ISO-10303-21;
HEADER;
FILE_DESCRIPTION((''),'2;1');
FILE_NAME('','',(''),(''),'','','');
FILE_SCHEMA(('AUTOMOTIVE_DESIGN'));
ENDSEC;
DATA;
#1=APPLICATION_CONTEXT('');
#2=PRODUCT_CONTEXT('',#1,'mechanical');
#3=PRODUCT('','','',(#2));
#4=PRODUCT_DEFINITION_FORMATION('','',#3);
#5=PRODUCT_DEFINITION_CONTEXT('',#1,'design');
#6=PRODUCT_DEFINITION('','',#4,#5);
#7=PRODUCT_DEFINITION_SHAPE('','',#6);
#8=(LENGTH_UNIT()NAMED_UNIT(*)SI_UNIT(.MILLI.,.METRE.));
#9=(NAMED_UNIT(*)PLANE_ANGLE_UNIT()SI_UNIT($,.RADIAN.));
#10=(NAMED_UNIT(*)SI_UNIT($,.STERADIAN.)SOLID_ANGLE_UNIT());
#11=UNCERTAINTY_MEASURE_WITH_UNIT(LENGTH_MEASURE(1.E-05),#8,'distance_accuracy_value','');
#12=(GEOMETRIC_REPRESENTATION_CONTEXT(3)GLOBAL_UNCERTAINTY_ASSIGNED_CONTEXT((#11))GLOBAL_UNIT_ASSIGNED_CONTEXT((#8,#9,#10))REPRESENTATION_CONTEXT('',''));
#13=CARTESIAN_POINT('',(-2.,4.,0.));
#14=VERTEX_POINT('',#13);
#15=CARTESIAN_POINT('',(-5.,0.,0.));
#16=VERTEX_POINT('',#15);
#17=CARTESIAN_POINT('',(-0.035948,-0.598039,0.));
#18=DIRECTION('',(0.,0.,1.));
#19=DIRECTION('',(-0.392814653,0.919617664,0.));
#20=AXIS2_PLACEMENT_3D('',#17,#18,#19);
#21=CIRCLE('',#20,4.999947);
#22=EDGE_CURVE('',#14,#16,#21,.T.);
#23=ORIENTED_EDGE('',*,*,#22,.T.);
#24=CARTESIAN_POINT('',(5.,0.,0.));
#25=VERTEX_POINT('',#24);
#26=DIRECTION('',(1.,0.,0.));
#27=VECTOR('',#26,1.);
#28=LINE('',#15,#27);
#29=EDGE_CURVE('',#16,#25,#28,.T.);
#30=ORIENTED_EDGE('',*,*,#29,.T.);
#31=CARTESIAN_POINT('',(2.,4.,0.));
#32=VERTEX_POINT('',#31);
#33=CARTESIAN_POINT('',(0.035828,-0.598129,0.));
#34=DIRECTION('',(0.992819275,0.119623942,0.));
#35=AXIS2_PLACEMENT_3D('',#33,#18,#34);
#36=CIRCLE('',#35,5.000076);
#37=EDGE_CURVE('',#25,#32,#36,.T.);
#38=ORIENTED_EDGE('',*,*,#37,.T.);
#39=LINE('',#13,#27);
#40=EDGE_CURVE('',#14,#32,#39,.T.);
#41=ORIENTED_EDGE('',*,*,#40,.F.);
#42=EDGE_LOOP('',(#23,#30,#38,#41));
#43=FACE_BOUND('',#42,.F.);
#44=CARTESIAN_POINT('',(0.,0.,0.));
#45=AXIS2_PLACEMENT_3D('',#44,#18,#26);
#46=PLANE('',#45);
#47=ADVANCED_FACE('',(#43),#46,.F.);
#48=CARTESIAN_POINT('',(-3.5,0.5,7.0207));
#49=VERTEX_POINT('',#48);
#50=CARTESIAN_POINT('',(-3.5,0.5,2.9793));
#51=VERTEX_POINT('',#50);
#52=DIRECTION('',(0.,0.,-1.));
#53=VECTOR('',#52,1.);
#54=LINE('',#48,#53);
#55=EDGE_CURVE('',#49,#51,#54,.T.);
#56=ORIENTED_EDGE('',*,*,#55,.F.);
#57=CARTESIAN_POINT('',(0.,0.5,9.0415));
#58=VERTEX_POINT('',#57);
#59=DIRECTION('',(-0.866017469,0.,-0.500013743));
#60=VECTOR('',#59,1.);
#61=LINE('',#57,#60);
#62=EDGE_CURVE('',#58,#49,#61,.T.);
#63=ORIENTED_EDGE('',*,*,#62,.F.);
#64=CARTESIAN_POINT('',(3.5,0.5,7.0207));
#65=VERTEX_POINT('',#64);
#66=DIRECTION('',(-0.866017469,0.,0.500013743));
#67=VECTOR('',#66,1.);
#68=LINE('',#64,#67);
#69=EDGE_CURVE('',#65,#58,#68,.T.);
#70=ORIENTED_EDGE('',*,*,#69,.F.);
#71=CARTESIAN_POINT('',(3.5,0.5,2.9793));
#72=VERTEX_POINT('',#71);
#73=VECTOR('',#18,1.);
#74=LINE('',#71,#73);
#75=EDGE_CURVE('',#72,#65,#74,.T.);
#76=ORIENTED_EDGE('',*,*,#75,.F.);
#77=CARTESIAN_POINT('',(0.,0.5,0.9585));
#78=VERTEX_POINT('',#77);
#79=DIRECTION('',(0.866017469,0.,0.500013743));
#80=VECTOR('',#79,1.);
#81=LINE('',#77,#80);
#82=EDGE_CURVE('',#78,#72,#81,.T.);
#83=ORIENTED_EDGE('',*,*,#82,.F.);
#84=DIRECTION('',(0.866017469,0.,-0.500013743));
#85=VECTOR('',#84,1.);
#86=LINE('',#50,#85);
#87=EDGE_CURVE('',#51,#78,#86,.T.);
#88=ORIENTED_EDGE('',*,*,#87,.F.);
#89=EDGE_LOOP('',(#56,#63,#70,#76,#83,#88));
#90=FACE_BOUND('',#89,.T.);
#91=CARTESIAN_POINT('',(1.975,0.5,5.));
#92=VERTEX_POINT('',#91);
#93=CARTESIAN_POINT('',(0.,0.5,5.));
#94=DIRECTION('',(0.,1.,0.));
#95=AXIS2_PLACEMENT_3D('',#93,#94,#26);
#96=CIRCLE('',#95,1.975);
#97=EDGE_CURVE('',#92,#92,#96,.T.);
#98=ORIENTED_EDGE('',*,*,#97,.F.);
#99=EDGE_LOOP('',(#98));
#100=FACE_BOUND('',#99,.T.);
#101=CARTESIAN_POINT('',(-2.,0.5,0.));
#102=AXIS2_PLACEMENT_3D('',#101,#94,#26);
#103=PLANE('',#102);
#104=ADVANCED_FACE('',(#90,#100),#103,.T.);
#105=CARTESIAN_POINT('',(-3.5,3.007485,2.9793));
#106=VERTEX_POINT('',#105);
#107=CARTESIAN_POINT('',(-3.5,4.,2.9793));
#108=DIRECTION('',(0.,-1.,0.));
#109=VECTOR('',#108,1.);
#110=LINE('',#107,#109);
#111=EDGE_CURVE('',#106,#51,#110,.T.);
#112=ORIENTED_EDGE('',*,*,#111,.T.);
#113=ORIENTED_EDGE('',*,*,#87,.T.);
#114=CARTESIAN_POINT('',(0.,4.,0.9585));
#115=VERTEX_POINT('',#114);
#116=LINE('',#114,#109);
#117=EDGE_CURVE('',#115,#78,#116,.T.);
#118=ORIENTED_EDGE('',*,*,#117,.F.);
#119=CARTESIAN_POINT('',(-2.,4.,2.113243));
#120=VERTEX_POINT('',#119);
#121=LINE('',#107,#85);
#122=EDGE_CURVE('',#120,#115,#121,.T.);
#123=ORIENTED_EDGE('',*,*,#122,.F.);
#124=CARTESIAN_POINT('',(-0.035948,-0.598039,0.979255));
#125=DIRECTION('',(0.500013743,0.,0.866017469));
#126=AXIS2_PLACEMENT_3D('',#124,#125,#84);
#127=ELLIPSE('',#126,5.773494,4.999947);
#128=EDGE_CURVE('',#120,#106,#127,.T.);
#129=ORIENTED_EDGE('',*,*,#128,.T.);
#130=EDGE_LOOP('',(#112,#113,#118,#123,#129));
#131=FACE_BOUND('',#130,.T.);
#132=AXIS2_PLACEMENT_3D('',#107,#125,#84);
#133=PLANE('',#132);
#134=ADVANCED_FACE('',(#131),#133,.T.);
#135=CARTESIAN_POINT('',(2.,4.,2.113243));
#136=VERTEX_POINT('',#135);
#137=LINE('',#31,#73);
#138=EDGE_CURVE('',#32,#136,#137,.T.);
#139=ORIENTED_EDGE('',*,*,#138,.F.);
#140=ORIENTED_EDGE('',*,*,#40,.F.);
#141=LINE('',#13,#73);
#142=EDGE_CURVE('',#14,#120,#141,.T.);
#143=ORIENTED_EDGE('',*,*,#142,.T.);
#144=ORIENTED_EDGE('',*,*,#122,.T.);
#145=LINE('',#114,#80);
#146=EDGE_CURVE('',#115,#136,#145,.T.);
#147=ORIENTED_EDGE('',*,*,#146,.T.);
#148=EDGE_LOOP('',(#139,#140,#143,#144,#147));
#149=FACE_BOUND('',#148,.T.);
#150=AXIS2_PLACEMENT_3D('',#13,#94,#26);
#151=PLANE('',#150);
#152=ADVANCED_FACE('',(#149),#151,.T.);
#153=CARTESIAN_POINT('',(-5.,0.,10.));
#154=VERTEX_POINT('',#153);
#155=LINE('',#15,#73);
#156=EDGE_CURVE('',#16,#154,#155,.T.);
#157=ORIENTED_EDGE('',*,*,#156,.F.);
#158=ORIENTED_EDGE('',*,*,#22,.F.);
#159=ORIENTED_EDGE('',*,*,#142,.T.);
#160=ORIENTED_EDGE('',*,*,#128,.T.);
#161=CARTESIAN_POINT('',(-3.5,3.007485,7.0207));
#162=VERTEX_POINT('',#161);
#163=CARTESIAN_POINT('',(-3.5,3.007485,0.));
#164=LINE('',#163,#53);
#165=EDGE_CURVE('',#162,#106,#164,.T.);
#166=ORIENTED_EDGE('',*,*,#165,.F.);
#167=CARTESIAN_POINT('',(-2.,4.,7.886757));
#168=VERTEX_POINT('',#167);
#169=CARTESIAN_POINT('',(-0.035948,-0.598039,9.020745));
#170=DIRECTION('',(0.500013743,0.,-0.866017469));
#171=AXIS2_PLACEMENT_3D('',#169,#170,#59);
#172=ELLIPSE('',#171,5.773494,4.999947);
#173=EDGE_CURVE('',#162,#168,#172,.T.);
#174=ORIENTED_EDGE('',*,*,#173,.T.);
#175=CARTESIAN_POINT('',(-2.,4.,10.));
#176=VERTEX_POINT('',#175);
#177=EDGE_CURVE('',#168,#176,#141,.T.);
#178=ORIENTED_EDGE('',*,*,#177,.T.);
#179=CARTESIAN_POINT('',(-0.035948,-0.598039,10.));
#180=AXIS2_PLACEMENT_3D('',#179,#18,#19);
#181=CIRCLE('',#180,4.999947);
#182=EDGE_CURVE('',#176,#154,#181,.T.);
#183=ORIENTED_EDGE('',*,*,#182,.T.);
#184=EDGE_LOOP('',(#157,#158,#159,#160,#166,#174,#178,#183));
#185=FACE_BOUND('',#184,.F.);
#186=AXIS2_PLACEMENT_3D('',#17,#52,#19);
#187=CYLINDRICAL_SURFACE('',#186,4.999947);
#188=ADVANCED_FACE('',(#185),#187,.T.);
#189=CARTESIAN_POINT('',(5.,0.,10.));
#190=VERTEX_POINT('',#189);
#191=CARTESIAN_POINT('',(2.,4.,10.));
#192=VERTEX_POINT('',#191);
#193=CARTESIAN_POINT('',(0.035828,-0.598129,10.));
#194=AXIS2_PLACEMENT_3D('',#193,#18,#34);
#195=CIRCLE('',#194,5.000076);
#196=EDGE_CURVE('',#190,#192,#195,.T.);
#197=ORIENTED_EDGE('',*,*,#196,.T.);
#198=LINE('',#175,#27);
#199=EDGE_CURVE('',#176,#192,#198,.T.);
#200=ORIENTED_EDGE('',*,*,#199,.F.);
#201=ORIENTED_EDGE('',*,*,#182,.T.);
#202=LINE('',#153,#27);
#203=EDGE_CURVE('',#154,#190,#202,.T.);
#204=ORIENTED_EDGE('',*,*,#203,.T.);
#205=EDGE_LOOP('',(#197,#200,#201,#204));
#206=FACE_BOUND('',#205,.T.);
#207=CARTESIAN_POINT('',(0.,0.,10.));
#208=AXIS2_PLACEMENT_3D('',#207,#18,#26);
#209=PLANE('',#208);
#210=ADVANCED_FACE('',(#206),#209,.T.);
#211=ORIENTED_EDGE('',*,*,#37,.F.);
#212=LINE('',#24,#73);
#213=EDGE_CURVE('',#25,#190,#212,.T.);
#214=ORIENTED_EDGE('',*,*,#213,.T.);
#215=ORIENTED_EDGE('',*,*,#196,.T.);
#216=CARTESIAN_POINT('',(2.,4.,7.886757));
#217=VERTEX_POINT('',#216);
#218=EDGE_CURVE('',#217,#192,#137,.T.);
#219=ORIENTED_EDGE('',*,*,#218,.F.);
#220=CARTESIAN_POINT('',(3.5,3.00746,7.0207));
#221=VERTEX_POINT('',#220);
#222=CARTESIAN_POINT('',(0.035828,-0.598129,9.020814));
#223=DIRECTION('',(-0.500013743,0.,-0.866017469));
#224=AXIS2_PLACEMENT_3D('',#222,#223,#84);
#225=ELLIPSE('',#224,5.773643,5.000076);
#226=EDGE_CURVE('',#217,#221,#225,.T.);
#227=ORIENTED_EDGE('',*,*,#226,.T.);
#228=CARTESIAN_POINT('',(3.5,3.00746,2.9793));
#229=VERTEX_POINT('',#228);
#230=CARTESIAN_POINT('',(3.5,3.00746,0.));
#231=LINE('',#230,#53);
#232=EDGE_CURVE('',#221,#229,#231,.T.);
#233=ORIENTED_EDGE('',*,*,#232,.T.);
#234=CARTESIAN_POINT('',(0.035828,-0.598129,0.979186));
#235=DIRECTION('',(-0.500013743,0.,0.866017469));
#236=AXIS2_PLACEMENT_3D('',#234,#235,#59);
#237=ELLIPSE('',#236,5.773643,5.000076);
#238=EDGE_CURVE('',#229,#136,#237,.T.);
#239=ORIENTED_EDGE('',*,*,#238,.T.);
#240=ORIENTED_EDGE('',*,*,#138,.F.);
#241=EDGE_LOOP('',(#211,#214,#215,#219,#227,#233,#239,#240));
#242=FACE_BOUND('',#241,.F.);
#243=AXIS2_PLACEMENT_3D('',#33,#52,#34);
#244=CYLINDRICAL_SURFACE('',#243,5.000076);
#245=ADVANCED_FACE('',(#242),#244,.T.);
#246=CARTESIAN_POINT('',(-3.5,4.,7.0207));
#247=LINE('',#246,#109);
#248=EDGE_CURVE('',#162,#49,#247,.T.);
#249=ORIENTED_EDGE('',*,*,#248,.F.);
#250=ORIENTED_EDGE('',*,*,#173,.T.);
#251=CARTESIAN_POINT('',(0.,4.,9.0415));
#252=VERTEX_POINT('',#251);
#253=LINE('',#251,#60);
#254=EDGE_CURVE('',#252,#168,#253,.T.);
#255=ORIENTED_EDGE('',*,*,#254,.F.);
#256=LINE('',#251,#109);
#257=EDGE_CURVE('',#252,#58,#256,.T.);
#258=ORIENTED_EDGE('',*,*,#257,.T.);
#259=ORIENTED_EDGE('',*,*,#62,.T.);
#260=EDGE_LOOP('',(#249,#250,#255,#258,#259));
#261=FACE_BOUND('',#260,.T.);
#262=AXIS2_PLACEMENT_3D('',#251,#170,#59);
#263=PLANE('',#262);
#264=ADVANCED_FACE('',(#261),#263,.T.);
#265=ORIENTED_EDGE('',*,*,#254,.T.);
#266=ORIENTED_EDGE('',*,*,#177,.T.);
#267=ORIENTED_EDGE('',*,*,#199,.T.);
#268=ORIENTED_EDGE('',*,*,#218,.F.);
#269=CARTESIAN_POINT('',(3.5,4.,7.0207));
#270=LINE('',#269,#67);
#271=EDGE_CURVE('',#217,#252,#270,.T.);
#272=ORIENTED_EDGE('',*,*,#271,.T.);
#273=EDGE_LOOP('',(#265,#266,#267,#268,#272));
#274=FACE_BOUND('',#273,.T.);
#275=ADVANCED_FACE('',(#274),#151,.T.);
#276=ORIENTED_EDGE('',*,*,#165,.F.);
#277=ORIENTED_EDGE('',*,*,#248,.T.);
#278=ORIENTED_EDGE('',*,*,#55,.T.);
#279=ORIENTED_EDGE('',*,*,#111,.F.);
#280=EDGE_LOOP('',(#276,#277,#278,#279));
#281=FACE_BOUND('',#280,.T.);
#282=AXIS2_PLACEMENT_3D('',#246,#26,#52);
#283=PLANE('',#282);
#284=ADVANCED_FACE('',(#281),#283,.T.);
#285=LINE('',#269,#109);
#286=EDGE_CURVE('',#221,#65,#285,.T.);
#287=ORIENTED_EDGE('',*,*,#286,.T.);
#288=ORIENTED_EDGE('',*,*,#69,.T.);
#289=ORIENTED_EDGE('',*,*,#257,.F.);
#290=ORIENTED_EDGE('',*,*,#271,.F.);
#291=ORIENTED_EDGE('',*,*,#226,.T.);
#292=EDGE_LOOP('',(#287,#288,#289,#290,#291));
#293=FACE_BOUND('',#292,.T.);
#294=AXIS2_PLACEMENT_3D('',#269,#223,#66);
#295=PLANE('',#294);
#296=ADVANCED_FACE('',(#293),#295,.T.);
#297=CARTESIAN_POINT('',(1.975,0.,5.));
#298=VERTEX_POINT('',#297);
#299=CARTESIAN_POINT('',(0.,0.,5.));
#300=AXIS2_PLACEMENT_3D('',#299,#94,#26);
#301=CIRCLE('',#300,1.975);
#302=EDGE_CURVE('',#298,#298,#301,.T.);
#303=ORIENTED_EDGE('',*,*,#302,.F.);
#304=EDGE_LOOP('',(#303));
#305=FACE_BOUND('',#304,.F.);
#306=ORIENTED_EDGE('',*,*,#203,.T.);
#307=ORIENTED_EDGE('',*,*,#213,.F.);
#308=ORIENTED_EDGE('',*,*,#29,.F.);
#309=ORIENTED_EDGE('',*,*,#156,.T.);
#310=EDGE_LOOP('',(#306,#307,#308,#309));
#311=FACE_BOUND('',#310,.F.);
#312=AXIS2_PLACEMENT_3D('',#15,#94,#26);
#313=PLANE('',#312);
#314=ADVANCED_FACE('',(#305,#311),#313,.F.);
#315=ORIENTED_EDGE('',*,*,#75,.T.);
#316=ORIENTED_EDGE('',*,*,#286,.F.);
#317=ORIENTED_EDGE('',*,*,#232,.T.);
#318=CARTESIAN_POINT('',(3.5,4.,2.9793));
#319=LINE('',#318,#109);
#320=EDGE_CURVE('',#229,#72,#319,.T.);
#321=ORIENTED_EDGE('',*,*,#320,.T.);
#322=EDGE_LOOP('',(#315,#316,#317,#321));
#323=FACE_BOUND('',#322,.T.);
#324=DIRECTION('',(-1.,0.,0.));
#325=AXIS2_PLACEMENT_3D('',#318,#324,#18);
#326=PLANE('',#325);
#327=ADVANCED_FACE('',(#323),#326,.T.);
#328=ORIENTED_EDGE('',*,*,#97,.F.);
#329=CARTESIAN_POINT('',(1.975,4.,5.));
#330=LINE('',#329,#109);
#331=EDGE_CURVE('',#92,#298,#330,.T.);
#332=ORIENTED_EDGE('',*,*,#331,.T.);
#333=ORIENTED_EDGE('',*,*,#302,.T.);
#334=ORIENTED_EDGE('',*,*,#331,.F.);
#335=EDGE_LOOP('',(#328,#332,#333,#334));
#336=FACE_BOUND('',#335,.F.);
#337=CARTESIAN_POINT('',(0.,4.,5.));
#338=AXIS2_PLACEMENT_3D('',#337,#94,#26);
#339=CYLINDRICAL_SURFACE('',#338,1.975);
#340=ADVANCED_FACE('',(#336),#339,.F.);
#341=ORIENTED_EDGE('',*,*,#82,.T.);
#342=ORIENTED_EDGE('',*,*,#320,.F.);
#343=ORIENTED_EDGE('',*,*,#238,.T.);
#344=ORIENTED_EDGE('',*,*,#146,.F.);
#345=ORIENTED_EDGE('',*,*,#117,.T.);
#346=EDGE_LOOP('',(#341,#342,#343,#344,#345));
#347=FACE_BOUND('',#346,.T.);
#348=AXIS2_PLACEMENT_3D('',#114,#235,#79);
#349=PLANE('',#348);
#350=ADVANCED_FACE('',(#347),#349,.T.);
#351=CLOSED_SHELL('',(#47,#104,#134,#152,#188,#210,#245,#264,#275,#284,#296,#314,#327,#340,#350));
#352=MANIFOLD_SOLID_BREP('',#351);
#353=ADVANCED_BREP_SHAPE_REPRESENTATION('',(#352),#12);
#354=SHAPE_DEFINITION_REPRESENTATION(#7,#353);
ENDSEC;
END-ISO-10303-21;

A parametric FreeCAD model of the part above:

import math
import FreeCAD as App
import Part
import Sketcher
Q = App.Units.Quantity


def add_polygon(sketch, points):
    """Adds a closed chain of lines whose ends are joined by coincident constraints."""
    first, n = sketch.GeometryCount, len(points)
    for a, b in zip(points, points[1:] + points[:1]):
        sketch.addGeometry(Part.LineSegment(App.Vector(*a, 0), App.Vector(*b, 0)), False)
    for i in range(n):
        sketch.addConstraint(Sketcher.Constraint("Coincident", first + i, 2, first + (i + 1) % n, 1))

doc = App.newDocument("Part")
body = doc.addObject("PartDesign::Body", "Body")

sketch1 = body.newObject("Sketcher::SketchObject", "Sketch")
sketch1.AttachmentSupport = (doc.getObject("XY_Plane"), [""])
sketch1.MapMode = "FlatFace"
sketch1.addGeometry([
    Part.ArcOfCircle(Part.Circle(App.Vector(-0.0359, -0.5981, 0), App.Vector(0, 0, 1), 5.000021), math.radians(113.129978), math.radians(173.129829)),
    Part.LineSegment(App.Vector(-5, 0, 0), App.Vector(5, 0, 0)),
    Part.ArcOfCircle(Part.Circle(App.Vector(0.0359, -0.5981, 0), App.Vector(0, 0, 1), 5.000001), math.radians(6.870171), math.radians(66.870022)),
    Part.LineSegment(App.Vector(2, 4, 0), App.Vector(-2, 4, 0)),
], False)
sketch1.addConstraint([
    Sketcher.Constraint("Coincident", 0, 2, 1, 1),
    Sketcher.Constraint("Coincident", 1, 2, 2, 1),
    Sketcher.Constraint("Coincident", 2, 2, 3, 1),
    Sketcher.Constraint("Coincident", 3, 2, 0, 1),
    Sketcher.Constraint("Horizontal", 1),
    Sketcher.Constraint("Horizontal", 3),
    Sketcher.Constraint("Equal", 0, 2),
    Sketcher.Constraint("Symmetric", 0, 2, 1, 2, -1, 1),
    Sketcher.Constraint("Horizontal", 0, 3, 2, 3),
    Sketcher.Constraint("Radius", 0, 5.0),
    Sketcher.Constraint("DistanceX", 1, 1, 1, 2, 10.0),
    Sketcher.Constraint("DistanceX", 3, 2, 3, 1, 4.0),
    Sketcher.Constraint("DistanceY", -1, 1, 2, 2, 4.0),
])
pad1 = body.newObject("PartDesign::Pad", "Pad")
pad1.Profile = sketch1
pad1.Length = 10

sketch2 = body.newObject("Sketcher::SketchObject", "Sketch001")
sketch2.AttachmentSupport = (doc.getObject("XZ_Plane"), [""])
sketch2.MapMode = "FlatFace"
sketch2.AttachmentOffset = App.Placement(App.Vector(0, 0, -4), App.Rotation())
sketch2.addGeometry(Part.Circle(App.Vector(0, 5, 0), App.Vector(0, 0, 1), 1.975), False)
sketch2.addConstraint([
    Sketcher.Constraint("PointOnObject", 0, 3, -2),
    Sketcher.Constraint("Diameter", 0, 3.95),
    Sketcher.Constraint("DistanceY", -1, 1, 0, 3, 5.0),
])
pocket1 = body.newObject("PartDesign::Pocket", "Pocket")
pocket1.Profile = sketch2
pocket1.Length = 10
pocket1.Reversed = True

sketch3 = body.newObject("Sketcher::SketchObject", "Sketch002")
sketch3.AttachmentSupport = (doc.getObject("XZ_Plane"), [""])
sketch3.MapMode = "FlatFace"
sketch3.AttachmentOffset = App.Placement(App.Vector(0, 0, -4), App.Rotation())
add_polygon(sketch3, [(3.5, 2.9793), (0, 0.9585), (-3.5, 2.9793), (-3.5, 7.0207), (0, 9.0415), (3.5, 7.0207)])
sketch3.addGeometry(Part.Circle(App.Vector(0, 5, 0), App.Vector(0, 0, 1), 1.975), False)
sketch3.addConstraint([
    Sketcher.Constraint("Vertical", 2),
    Sketcher.Constraint("Vertical", 5),
    Sketcher.Constraint("Symmetric", 2, 2, 4, 2, -2),
    Sketcher.Constraint("PointOnObject", 6, 3, -2),
    Sketcher.Constraint("PointOnObject", 0, 2, -2),
    Sketcher.Constraint("PointOnObject", 3, 2, -2),
    Sketcher.Constraint("Parallel", 0, 3),
    Sketcher.Constraint("Parallel", 1, 4),
    Sketcher.Constraint("DistanceX", 1, 2, -1, 1, 3.5),
    Sketcher.Constraint("Diameter", 6, 3.95),
    Sketcher.Constraint("Angle", 0, Q("-149.999 deg")),
    Sketcher.Constraint("DistanceY", -1, 1, 6, 3, 5.0),
    Sketcher.Constraint("DistanceY", 2, 1, 2, 2, 4.0414),
    Sketcher.Constraint("DistanceY", -1, 1, 0, 2, 0.9585),
])
pocket2 = body.newObject("PartDesign::Pocket", "Pocket001")
pocket2.Profile = sketch3
pocket2.Length = 3.5
pocket2.Reversed = True

doc.recompute()
